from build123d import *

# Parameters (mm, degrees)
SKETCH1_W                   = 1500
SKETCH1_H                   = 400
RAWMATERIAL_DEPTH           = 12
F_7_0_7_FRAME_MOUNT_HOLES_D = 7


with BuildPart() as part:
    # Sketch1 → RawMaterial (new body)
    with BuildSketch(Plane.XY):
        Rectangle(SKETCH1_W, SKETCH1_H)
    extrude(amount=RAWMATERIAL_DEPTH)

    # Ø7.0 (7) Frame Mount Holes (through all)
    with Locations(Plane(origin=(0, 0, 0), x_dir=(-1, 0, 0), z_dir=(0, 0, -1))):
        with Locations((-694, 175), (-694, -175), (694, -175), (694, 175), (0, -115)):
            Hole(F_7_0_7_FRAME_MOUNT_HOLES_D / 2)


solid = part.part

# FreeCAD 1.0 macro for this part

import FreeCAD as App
import Part
import Sketcher

doc = App.newDocument("Part")
params = doc.addObject("Spreadsheet::Sheet", "Params")
for row, (alias, value) in enumerate([
    ("sketch1_width", "1500 mm"),
    ("sketch1_height", "400 mm"),
    ("pad1_length", "12 mm"),
    ("sketch2_diameter", "7 mm"),
    ("hole_diameter", "7 mm"),
], start=1):
    params.set(f"A{row}", alias)
    params.set(f"B{row}", "=" + value)
    params.setAlias(f"B{row}", alias)

body = doc.addObject("PartDesign::Body", "Body")

# Sketch on XY plane
sketch1 = body.newObject("Sketcher::SketchObject", "Sketch")
sketch1.AttachmentSupport = (doc.getObject("XY_Plane"), [""])
sketch1.MapMode = "FlatFace"
sketch1.addGeometry(Part.LineSegment(App.Vector(-750, 200, 0), App.Vector(-750, -200, 0)), False)
sketch1.addGeometry(Part.LineSegment(App.Vector(-750, -200, 0), App.Vector(750, -200, 0)), False)
sketch1.addGeometry(Part.LineSegment(App.Vector(750, -200, 0), App.Vector(750, 200, 0)), False)
sketch1.addGeometry(Part.LineSegment(App.Vector(750, 200, 0), App.Vector(-750, 200, 0)), False)
sketch1.addConstraint(Sketcher.Constraint("Coincident", 0, 2, 1, 1))
sketch1.addConstraint(Sketcher.Constraint("Coincident", 1, 2, 2, 1))
sketch1.addConstraint(Sketcher.Constraint("Coincident", 2, 2, 3, 1))
sketch1.addConstraint(Sketcher.Constraint("Coincident", 3, 2, 0, 1))
sketch1.addConstraint(Sketcher.Constraint("Vertical", 0))
sketch1.addConstraint(Sketcher.Constraint("Horizontal", 1))
sketch1.addConstraint(Sketcher.Constraint("Vertical", 2))
sketch1.addConstraint(Sketcher.Constraint("Horizontal", 3))
sketch1.addConstraint(Sketcher.Constraint("Symmetric", 0, 2, 2, 2, -1, 1))
sketch1.addConstraint(Sketcher.Constraint("DistanceX", 1, 1, 1, 2, 1500.0))
sketch1.addConstraint(Sketcher.Constraint("DistanceY", 0, 2, 0, 1, 400.0))
sketch1.setExpression("Constraints[9]", "Params.sketch1_width")
sketch1.setExpression("Constraints[10]", "Params.sketch1_height")
pad1 = body.newObject("PartDesign::Pad", "Pad")
pad1.Profile = sketch1
pad1.setExpression("Length", "Params.pad1_length")

# Sketch on XY plane
sketch2 = body.newObject("Sketcher::SketchObject", "Sketch001")
sketch2.AttachmentSupport = (doc.getObject("XY_Plane"), [""])
sketch2.MapMode = "FlatFace"
sketch2.addGeometry(Part.Circle(App.Vector(694, 175, 0), App.Vector(0, 0, 1), 3.5), False)
sketch2.addGeometry(Part.Circle(App.Vector(694, -175, 0), App.Vector(0, 0, 1), 3.5), False)
sketch2.addGeometry(Part.Circle(App.Vector(-694, -175, 0), App.Vector(0, 0, 1), 3.5), False)
sketch2.addGeometry(Part.Circle(App.Vector(-694, 175, 0), App.Vector(0, 0, 1), 3.5), False)
sketch2.addGeometry(Part.Circle(App.Vector(0, -115, 0), App.Vector(0, 0, 1), 3.5), False)
sketch2.addConstraint(Sketcher.Constraint("Equal", 0, 1))
sketch2.addConstraint(Sketcher.Constraint("Equal", 1, 2))
sketch2.addConstraint(Sketcher.Constraint("Equal", 2, 3))
sketch2.addConstraint(Sketcher.Constraint("Equal", 3, 4))
sketch2.addConstraint(Sketcher.Constraint("Symmetric", 0, 3, 2, 3, -1, 1))
sketch2.addConstraint(Sketcher.Constraint("Symmetric", 1, 3, 3, 3, -1, 1))
sketch2.addConstraint(Sketcher.Constraint("Symmetric", 1, 3, 2, 3, -2))
sketch2.addConstraint(Sketcher.Constraint("PointOnObject", 4, 3, -2))
sketch2.addConstraint(Sketcher.Constraint("Diameter", 0, 7.0))
sketch2.addConstraint(Sketcher.Constraint("DistanceX", -1, 1, 0, 3, 694.0))
sketch2.addConstraint(Sketcher.Constraint("DistanceY", -1, 1, 0, 3, 175.0))
sketch2.addConstraint(Sketcher.Constraint("DistanceY", 4, 3, -1, 1, 115.0))
sketch2.setExpression("Constraints[8]", "Params.sketch2_diameter")
doc.recompute()
hole = body.newObject("PartDesign::Hole", "Hole")
hole.Profile = sketch2
hole.ThreadType = "None"
hole.setExpression("Diameter", "Params.hole_diameter")
hole.DepthType = "ThroughAll"
hole.Reversed = True

doc.recompute()
